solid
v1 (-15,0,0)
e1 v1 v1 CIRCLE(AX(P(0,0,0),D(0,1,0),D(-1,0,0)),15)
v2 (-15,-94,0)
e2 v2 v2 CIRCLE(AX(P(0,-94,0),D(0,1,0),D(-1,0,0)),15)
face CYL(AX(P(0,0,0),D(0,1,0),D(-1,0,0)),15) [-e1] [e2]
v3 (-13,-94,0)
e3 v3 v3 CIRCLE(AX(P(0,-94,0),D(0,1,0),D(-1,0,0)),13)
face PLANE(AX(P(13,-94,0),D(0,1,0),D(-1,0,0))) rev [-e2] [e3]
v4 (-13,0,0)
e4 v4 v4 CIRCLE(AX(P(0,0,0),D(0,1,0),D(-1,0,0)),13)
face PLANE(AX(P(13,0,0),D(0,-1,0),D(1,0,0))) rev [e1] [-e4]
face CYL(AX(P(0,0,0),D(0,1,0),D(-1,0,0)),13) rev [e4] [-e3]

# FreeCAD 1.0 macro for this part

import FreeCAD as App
import Part
import Sketcher

V = App.Vector
Q = App.Units.Quantity


def add_polygon(sketch, points):
    """Adds a closed chain of lines whose ends are joined by coincident constraints."""
    first, n = sketch.GeometryCount, len(points)
    for a, b in zip(points, points[1:] + points[:1]):
        sketch.addGeometry(Part.LineSegment(App.Vector(*a, 0), App.Vector(*b, 0)), False)
    for i in range(n):
        sketch.addConstraint(Sketcher.Constraint("Coincident", first + i, 2, first + (i + 1) % n, 1))

doc = App.newDocument("Part")
body = doc.addObject("PartDesign::Body", "Body")

sketch1 = body.newObject("Sketcher::SketchObject", "Sketch")
sketch1.AttachmentSupport = (doc.getObject("XY_Plane"), [""])
sketch1.MapMode = "FlatFace"
add_polygon(sketch1, [(13, 0), (13, -94), (15, -94), (15, 0)])
sketch1.addConstraint([
    Sketcher.Constraint("Vertical", 0),
    Sketcher.Constraint("Horizontal", 1),
    Sketcher.Constraint("Vertical", 2),
    Sketcher.Constraint("Horizontal", 3),
    Sketcher.Constraint("PointOnObject", 2, 2, -1),
    Sketcher.Constraint("DistanceX", 1, 1, 1, 2, Q("2 mm")),
    Sketcher.Constraint("DistanceY", 0, 2, 0, 1, Q("94 mm")),
    Sketcher.Constraint("DistanceX", -1, 1, 0, 2, Q("13 mm")),
])
revolution = body.newObject("PartDesign::Revolution", "Revolution")
revolution.Profile = sketch1
revolution.ReferenceAxis = (sketch1, ["V_Axis"])
revolution.Angle = 360

doc.recompute()
